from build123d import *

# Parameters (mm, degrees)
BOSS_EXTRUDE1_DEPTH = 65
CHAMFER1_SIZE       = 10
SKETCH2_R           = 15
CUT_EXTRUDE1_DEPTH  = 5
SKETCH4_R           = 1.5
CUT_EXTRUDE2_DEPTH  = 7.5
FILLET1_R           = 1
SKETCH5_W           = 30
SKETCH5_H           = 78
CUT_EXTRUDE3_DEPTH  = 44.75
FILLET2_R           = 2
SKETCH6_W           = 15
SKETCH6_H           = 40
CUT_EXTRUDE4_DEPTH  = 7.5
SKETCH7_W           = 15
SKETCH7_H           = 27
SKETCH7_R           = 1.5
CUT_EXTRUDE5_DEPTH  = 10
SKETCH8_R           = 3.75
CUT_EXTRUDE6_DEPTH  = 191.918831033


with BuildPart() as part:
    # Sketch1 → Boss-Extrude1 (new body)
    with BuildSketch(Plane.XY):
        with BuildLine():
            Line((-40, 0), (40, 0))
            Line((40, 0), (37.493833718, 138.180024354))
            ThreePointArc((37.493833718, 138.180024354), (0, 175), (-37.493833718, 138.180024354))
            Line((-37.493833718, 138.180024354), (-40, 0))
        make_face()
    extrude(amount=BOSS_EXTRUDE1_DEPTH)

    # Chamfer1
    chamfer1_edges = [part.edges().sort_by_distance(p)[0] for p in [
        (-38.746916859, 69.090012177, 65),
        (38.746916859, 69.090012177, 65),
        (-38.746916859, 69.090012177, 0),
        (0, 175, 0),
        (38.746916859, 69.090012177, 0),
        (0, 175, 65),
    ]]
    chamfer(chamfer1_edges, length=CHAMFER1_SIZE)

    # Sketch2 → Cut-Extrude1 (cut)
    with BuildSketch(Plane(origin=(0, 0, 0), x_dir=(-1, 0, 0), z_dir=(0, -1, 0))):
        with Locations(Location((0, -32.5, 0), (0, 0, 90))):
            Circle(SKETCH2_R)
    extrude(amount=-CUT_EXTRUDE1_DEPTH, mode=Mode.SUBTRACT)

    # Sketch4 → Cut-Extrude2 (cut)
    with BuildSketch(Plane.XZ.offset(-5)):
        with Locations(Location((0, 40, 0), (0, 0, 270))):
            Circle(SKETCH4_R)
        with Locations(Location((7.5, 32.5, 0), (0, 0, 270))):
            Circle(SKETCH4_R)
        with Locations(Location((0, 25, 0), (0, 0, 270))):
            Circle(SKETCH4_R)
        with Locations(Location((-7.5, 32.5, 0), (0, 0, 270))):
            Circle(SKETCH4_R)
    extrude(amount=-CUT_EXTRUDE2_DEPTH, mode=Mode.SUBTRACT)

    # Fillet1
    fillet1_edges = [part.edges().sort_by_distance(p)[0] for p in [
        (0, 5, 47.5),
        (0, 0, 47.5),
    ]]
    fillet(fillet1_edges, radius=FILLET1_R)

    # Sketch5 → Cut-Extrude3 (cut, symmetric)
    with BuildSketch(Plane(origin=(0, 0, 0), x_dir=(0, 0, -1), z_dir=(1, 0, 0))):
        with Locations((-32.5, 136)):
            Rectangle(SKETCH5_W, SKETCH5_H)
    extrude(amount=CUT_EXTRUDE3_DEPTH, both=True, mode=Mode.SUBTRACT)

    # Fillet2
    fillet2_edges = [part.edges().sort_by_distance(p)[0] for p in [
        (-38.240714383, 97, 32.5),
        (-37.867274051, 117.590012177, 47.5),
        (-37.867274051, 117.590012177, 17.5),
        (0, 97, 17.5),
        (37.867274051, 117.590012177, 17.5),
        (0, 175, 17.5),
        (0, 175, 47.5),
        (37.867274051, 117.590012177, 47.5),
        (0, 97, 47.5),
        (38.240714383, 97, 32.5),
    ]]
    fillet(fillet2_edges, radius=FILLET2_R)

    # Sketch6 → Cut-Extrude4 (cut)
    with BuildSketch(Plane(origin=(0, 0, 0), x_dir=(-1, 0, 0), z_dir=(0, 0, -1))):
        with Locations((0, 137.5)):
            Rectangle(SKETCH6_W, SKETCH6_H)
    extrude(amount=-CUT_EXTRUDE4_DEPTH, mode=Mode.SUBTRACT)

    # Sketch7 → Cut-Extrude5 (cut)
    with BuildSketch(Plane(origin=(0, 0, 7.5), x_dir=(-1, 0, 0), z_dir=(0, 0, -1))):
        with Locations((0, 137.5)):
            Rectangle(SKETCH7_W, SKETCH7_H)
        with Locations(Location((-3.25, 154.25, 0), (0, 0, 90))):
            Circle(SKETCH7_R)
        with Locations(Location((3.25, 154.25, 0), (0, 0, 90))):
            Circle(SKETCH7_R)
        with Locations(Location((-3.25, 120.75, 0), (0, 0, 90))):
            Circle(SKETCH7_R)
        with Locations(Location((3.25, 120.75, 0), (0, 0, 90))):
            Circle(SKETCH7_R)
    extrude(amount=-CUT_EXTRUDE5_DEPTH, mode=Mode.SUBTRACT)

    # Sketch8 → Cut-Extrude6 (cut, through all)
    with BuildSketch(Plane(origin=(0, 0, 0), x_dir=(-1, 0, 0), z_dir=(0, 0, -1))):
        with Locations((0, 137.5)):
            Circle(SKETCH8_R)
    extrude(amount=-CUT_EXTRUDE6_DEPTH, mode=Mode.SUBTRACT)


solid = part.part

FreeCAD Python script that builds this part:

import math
import FreeCAD as App
import Part
import Sketcher
Q = App.Units.Quantity


def edges_at(feature, points):
    """Names of the edges that pass closest to the given points."""
    edges = feature.Shape.Edges
    near = lambda p: min(range(len(edges)), key=lambda i: edges[i].distToShape(Part.Vertex(*p))[0])
    return sorted({f"Edge{near(p) + 1}" for p in points})

doc = App.newDocument("Part")
params = doc.addObject("Spreadsheet::Sheet", "Params")
for row, (alias, value) in enumerate([
    ("sketch1_radius", "37.5 mm"),
    ("sketch1_width", "80 mm"),
    ("pad1_length", "65 mm"),
    ("chamfer_size", "10 mm"),
    ("sketch2_diameter", "30 mm"),
    ("pocket1_length", "5 mm"),
    ("sketch3_diameter", "3 mm"),
    ("pocket2_length", "7.5 mm"),
    ("fillet_radius", "1 mm"),
    ("sketch4_width", "78 mm"),
    ("sketch4_height", "30 mm"),
    ("pocket3_length", "89.5 mm"),
    ("fillet2_radius", "2 mm"),
    ("sketch5_width", "15 mm"),
    ("sketch5_height", "40 mm"),
    ("pocket4_length", "7.5 mm"),
    ("sketch6_diameter", "3 mm"),
    ("sketch6_width", "15 mm"),
    ("sketch6_height", "27 mm"),
    ("pocket5_length", "10 mm"),
    ("sketch7_diameter", "7.5 mm"),
], start=1):
    params.set(f"A{row}", alias)
    params.set(f"B{row}", "=" + value)
    params.setAlias(f"B{row}", alias)

body = doc.addObject("PartDesign::Body", "Body")

# Sketch on XY plane
sketch1 = doc.addObject("Sketcher::SketchObject", "Sketch")
body.addObject(sketch1)
sketch1.AttachmentSupport = (doc.XY_Plane, [""])
sketch1.MapMode = "FlatFace"
sketch1.addGeometry(Part.LineSegment(App.Vector(-40, 0, 0), App.Vector(40, 0, 0)), False)
sketch1.addGeometry(Part.LineSegment(App.Vector(40, 0, 0), App.Vector(37, 138, 0)), False)
sketch1.addGeometry(Part.ArcOfCircle(Part.Circle(App.Vector(0, 138, 0), App.Vector(0, 0, 1), 38), math.radians(1), math.radians(179)), False)
sketch1.addGeometry(Part.LineSegment(App.Vector(-37, 138, 0), App.Vector(-40, 0, 0)), False)
sketch1.addConstraint(Sketcher.Constraint("Coincident", 0, 2, 1, 1))
sketch1.addConstraint(Sketcher.Constraint("Tangent", 1, 2, 2, 1))
sketch1.addConstraint(Sketcher.Constraint("Tangent", 2, 2, 3, 1))
sketch1.addConstraint(Sketcher.Constraint("Coincident", 3, 2, 0, 1))
sketch1.addConstraint(Sketcher.Constraint("Horizontal", 0))
sketch1.addConstraint(Sketcher.Constraint("Symmetric", 0, 2, 3, 2, -1, 1))
sketch1.addConstraint(Sketcher.Constraint("PointOnObject", 2, 3, -2))
sketch1.addConstraint(Sketcher.Constraint("Radius", 2, Q("37.5 mm")))
sketch1.addConstraint(Sketcher.Constraint("DistanceX", 0, 1, 0, 2, Q("80 mm")))
sketch1.addConstraint(Sketcher.Constraint("DistanceY", -1, 1, 2, 3, Q("137.5 mm")))
sketch1.setExpression("Constraints[7]", "Params.sketch1_radius")
sketch1.setExpression("Constraints[8]", "Params.sketch1_width")
pad1 = doc.addObject("PartDesign::Pad", "Pad")
body.addObject(pad1)
pad1.Profile = sketch1
pad1.setExpression("Length", "Params.pad1_length")
doc.recompute()

chamfer = doc.addObject("PartDesign::Chamfer", "Chamfer")
body.addObject(chamfer)
chamfer.Base = (pad1, edges_at(pad1, [
    (-38.747, 69.09, 65),
    (38.747, 69.09, 65),
    (-38.747, 69.09, 0),
    (0, 175, 0),
    (38.747, 69.09, 0),
    (0, 175, 65),
]))
chamfer.setExpression("Size", "Params.chamfer_size")

# Sketch on XZ plane
sketch2 = doc.addObject("Sketcher::SketchObject", "Sketch001")
body.addObject(sketch2)
sketch2.AttachmentSupport = (doc.XZ_Plane, [""])
sketch2.MapMode = "FlatFace"
sketch2.addGeometry(Part.Circle(App.Vector(0, 32, 0), App.Vector(0, 0, 1), 15), False)
sketch2.addConstraint(Sketcher.Constraint("PointOnObject", 0, 3, -2))
sketch2.addConstraint(Sketcher.Constraint("Diameter", 0, Q("30 mm")))
sketch2.addConstraint(Sketcher.Constraint("DistanceY", -1, 1, 0, 3, Q("32.5 mm")))
sketch2.setExpression("Constraints[1]", "Params.sketch2_diameter")
pocket1 = doc.addObject("PartDesign::Pocket", "Pocket")
body.addObject(pocket1)
pocket1.Profile = sketch2
pocket1.setExpression("Length", "Params.pocket1_length")

# Sketch on XZ plane
sketch3 = doc.addObject("Sketcher::SketchObject", "Sketch002")
body.addObject(sketch3)
sketch3.AttachmentSupport = (doc.XZ_Plane, [""])
sketch3.MapMode = "FlatFace"
sketch3.AttachmentOffset = App.Placement(App.Vector(0, 0, -5), App.Rotation())
sketch3.addGeometry(Part.Circle(App.Vector(0, 40, 0), App.Vector(0, 0, 1), 1.5), False)
sketch3.addGeometry(Part.Circle(App.Vector(7.5, 32.5, 0), App.Vector(0, 0, 1), 1.5), False)
sketch3.addGeometry(Part.Circle(App.Vector(0, 25, 0), App.Vector(0, 0, 1), 1.5), False)
sketch3.addGeometry(Part.Circle(App.Vector(-7.5, 32.5, 0), App.Vector(0, 0, 1), 1.5), False)
sketch3.addConstraint(Sketcher.Constraint("Equal", 0, 1))
sketch3.addConstraint(Sketcher.Constraint("Equal", 1, 2))
sketch3.addConstraint(Sketcher.Constraint("Equal", 2, 3))
sketch3.addConstraint(Sketcher.Constraint("Symmetric", 1, 3, 3, 3, -2))
sketch3.addConstraint(Sketcher.Constraint("PointOnObject", 0, 3, -2))
sketch3.addConstraint(Sketcher.Constraint("PointOnObject", 2, 3, -2))
sketch3.addConstraint(Sketcher.Constraint("Diameter", 0, Q("3 mm")))
sketch3.addConstraint(Sketcher.Constraint("DistanceY", -1, 1, 0, 3, Q("40 mm")))
sketch3.addConstraint(Sketcher.Constraint("DistanceY", -1, 1, 2, 3, Q("25 mm")))
sketch3.addConstraint(Sketcher.Constraint("DistanceX", 3, 3, 1, 3, Q("15 mm")))
sketch3.addConstraint(Sketcher.Constraint("DistanceY", -1, 1, 1, 3, Q("32.5 mm")))
sketch3.setExpression("Constraints[6]", "Params.sketch3_diameter")
pocket2 = doc.addObject("PartDesign::Pocket", "Pocket001")
body.addObject(pocket2)
pocket2.Profile = sketch3
pocket2.setExpression("Length", "Params.pocket2_length")
doc.recompute()

fillet = doc.addObject("PartDesign::Fillet", "Fillet")
body.addObject(fillet)
fillet.Base = (pocket2, edges_at(pocket2, [(0, 5, 47.5), (0, 0, 47.5)]))
fillet.setExpression("Radius", "Params.fillet_radius")

# Sketch on YZ plane
sketch4 = doc.addObject("Sketcher::SketchObject", "Sketch003")
body.addObject(sketch4)
sketch4.AttachmentSupport = (doc.YZ_Plane, [""])
sketch4.MapMode = "FlatFace"
sketch4.addGeometry(Part.LineSegment(App.Vector(175, 48, 0), App.Vector(97, 48, 0)), False)
sketch4.addGeometry(Part.LineSegment(App.Vector(97, 48, 0), App.Vector(97, 18, 0)), False)
sketch4.addGeometry(Part.LineSegment(App.Vector(97, 18, 0), App.Vector(175, 18, 0)), False)
sketch4.addGeometry(Part.LineSegment(App.Vector(175, 18, 0), App.Vector(175, 48, 0)), False)
sketch4.addConstraint(Sketcher.Constraint("Coincident", 0, 2, 1, 1))
sketch4.addConstraint(Sketcher.Constraint("Coincident", 1, 2, 2, 1))
sketch4.addConstraint(Sketcher.Constraint("Coincident", 2, 2, 3, 1))
sketch4.addConstraint(Sketcher.Constraint("Coincident", 3, 2, 0, 1))
sketch4.addConstraint(Sketcher.Constraint("Horizontal", 0))
sketch4.addConstraint(Sketcher.Constraint("Vertical", 1))
sketch4.addConstraint(Sketcher.Constraint("Horizontal", 2))
sketch4.addConstraint(Sketcher.Constraint("Vertical", 3))
sketch4.addConstraint(Sketcher.Constraint("DistanceX", 0, 2, 0, 1, Q("78 mm")))
sketch4.addConstraint(Sketcher.Constraint("DistanceY", 1, 2, 1, 1, Q("30 mm")))
sketch4.addConstraint(Sketcher.Constraint("DistanceX", -1, 1, 0, 2, Q("97 mm")))
sketch4.addConstraint(Sketcher.Constraint("DistanceY", -1, 1, 0, 2, Q("47.5 mm")))
sketch4.setExpression("Constraints[8]", "Params.sketch4_width")
sketch4.setExpression("Constraints[9]", "Params.sketch4_height")
pocket3 = doc.addObject("PartDesign::Pocket", "Pocket002")
body.addObject(pocket3)
pocket3.Profile = sketch4
pocket3.setExpression("Length", "Params.pocket3_length")
pocket3.Midplane = True
doc.recompute()

fillet2 = doc.addObject("PartDesign::Fillet", "Fillet001")
body.addObject(fillet2)
fillet2.Base = (pocket3, edges_at(pocket3, [
    (-38.241, 97, 32.5),
    (-37.867, 117.59, 47.5),
    (-37.867, 117.59, 17.5),
    (0, 97, 17.5),
    (37.867, 117.59, 17.5),
    (0, 175, 17.5),
    (0, 175, 47.5),
    (37.867, 117.59, 47.5),
    (0, 97, 47.5),
    (38.241, 97, 32.5),
]))
fillet2.setExpression("Radius", "Params.fillet2_radius")

# Sketch on XY plane
sketch5 = doc.addObject("Sketcher::SketchObject", "Sketch004")
body.addObject(sketch5)
sketch5.AttachmentSupport = (doc.XY_Plane, [""])
sketch5.MapMode = "FlatFace"
sketch5.addGeometry(Part.LineSegment(App.Vector(8, 158, 0), App.Vector(8, 118, 0)), False)
sketch5.addGeometry(Part.LineSegment(App.Vector(8, 118, 0), App.Vector(-8, 118, 0)), False)
sketch5.addGeometry(Part.LineSegment(App.Vector(-8, 118, 0), App.Vector(-8, 158, 0)), False)
sketch5.addGeometry(Part.LineSegment(App.Vector(-8, 158, 0), App.Vector(8, 158, 0)), False)
sketch5.addConstraint(Sketcher.Constraint("Coincident", 0, 2, 1, 1))
sketch5.addConstraint(Sketcher.Constraint("Coincident", 1, 2, 2, 1))
sketch5.addConstraint(Sketcher.Constraint("Coincident", 2, 2, 3, 1))
sketch5.addConstraint(Sketcher.Constraint("Coincident", 3, 2, 0, 1))
sketch5.addConstraint(Sketcher.Constraint("Vertical", 0))
sketch5.addConstraint(Sketcher.Constraint("Horizontal", 1))
sketch5.addConstraint(Sketcher.Constraint("Vertical", 2))
sketch5.addConstraint(Sketcher.Constraint("Horizontal", 3))
sketch5.addConstraint(Sketcher.Constraint("DistanceX", 1, 2, 1, 1, Q("15 mm")))
sketch5.addConstraint(Sketcher.Constraint("DistanceY", 0, 2, 0, 1, Q("40 mm")))
sketch5.addConstraint(Sketcher.Constraint("DistanceX", -1, 1, 0, 2, Q("7.5 mm")))
sketch5.addConstraint(Sketcher.Constraint("DistanceY", -1, 1, 0, 2, Q("117.5 mm")))
sketch5.setExpression("Constraints[8]", "Params.sketch5_width")
sketch5.setExpression("Constraints[9]", "Params.sketch5_height")
pocket4 = doc.addObject("PartDesign::Pocket", "Pocket003")
body.addObject(pocket4)
pocket4.Profile = sketch5
pocket4.setExpression("Length", "Params.pocket4_length")
pocket4.Reversed = True

# Sketch on XY plane
sketch6 = doc.addObject("Sketcher::SketchObject", "Sketch005")
body.addObject(sketch6)
sketch6.AttachmentSupport = (doc.XY_Plane, [""])
sketch6.MapMode = "FlatFace"
sketch6.AttachmentOffset = App.Placement(App.Vector(0, 0, 7.5), App.Rotation())
sketch6.addGeometry(Part.LineSegment(App.Vector(7.5, 151, 0), App.Vector(7.5, 124, 0)), False)
sketch6.addGeometry(Part.LineSegment(App.Vector(7.5, 124, 0), App.Vector(-7.5, 124, 0)), False)
sketch6.addGeometry(Part.LineSegment(App.Vector(-7.5, 124, 0), App.Vector(-7.5, 151, 0)), False)
sketch6.addGeometry(Part.LineSegment(App.Vector(-7.5, 151, 0), App.Vector(7.5, 151, 0)), False)
sketch6.addGeometry(Part.Circle(App.Vector(3.2, 154.2, 0), App.Vector(0, 0, 1), 1.5), False)
sketch6.addGeometry(Part.Circle(App.Vector(-3.2, 154.2, 0), App.Vector(0, 0, 1), 1.5), False)
sketch6.addGeometry(Part.Circle(App.Vector(3.2, 120.8, 0), App.Vector(0, 0, 1), 1.5), False)
sketch6.addGeometry(Part.Circle(App.Vector(-3.2, 120.8, 0), App.Vector(0, 0, 1), 1.5), False)
sketch6.addConstraint(Sketcher.Constraint("Coincident", 0, 2, 1, 1))
sketch6.addConstraint(Sketcher.Constraint("Coincident", 1, 2, 2, 1))
sketch6.addConstraint(Sketcher.Constraint("Coincident", 2, 2, 3, 1))
sketch6.addConstraint(Sketcher.Constraint("Coincident", 3, 2, 0, 1))
sketch6.addConstraint(Sketcher.Constraint("Vertical", 0))
sketch6.addConstraint(Sketcher.Constraint("Horizontal", 1))
sketch6.addConstraint(Sketcher.Constraint("Vertical", 2))
sketch6.addConstraint(Sketcher.Constraint("Horizontal", 3))
sketch6.addConstraint(Sketcher.Constraint("Equal", 4, 5))
sketch6.addConstraint(Sketcher.Constraint("Equal", 5, 6))
sketch6.addConstraint(Sketcher.Constraint("Equal", 6, 7))
sketch6.addConstraint(Sketcher.Constraint("Symmetric", 4, 3, 5, 3, -2))
sketch6.addConstraint(Sketcher.Constraint("Symmetric", 6, 3, 7, 3, -2))
sketch6.addConstraint(Sketcher.Constraint("Vertical", 4, 3, 6, 3))
sketch6.addConstraint(Sketcher.Constraint("Diameter", 4, Q("3 mm")))
sketch6.addConstraint(Sketcher.Constraint("DistanceX", 1, 2, 1, 1, Q("15 mm")))
sketch6.addConstraint(Sketcher.Constraint("DistanceY", 0, 2, 0, 1, Q("27 mm")))
sketch6.addConstraint(Sketcher.Constraint("DistanceY", -1, 1, 0, 2, Q("124 mm")))
sketch6.addConstraint(Sketcher.Constraint("DistanceX", -1, 1, 0, 2, Q("7.5 mm")))
sketch6.addConstraint(Sketcher.Constraint("DistanceX", 5, 3, 4, 3, Q("6.5 mm")))
sketch6.addConstraint(Sketcher.Constraint("DistanceY", 6, 3, 4, 3, Q("33.5 mm")))
sketch6.addConstraint(Sketcher.Constraint("DistanceY", -1, 1, 4, 3, Q("154.25 mm")))
sketch6.setExpression("Constraints[14]", "Params.sketch6_diameter")
sketch6.setExpression("Constraints[15]", "Params.sketch6_width")
sketch6.setExpression("Constraints[16]", "Params.sketch6_height")
pocket5 = doc.addObject("PartDesign::Pocket", "Pocket004")
body.addObject(pocket5)
pocket5.Profile = sketch6
pocket5.setExpression("Length", "Params.pocket5_length")
pocket5.Reversed = True

# Sketch on XY plane
sketch7 = doc.addObject("Sketcher::SketchObject", "Sketch006")
body.addObject(sketch7)
sketch7.AttachmentSupport = (doc.XY_Plane, [""])
sketch7.MapMode = "FlatFace"
sketch7.addGeometry(Part.Circle(App.Vector(0, 137.5, 0), App.Vector(0, 0, 1), 3.8), False)
sketch7.addConstraint(Sketcher.Constraint("PointOnObject", 0, 3, -2))
sketch7.addConstraint(Sketcher.Constraint("Diameter", 0, Q("7.5 mm")))
sketch7.addConstraint(Sketcher.Constraint("DistanceY", -1, 1, 0, 3, Q("137.5 mm")))
sketch7.setExpression("Constraints[1]", "Params.sketch7_diameter")
pocket6 = doc.addObject("PartDesign::Pocket", "Pocket005")
body.addObject(pocket6)
pocket6.Profile = sketch7
pocket6.Type = "ThroughAll"
pocket6.Reversed = True

doc.recompute()
